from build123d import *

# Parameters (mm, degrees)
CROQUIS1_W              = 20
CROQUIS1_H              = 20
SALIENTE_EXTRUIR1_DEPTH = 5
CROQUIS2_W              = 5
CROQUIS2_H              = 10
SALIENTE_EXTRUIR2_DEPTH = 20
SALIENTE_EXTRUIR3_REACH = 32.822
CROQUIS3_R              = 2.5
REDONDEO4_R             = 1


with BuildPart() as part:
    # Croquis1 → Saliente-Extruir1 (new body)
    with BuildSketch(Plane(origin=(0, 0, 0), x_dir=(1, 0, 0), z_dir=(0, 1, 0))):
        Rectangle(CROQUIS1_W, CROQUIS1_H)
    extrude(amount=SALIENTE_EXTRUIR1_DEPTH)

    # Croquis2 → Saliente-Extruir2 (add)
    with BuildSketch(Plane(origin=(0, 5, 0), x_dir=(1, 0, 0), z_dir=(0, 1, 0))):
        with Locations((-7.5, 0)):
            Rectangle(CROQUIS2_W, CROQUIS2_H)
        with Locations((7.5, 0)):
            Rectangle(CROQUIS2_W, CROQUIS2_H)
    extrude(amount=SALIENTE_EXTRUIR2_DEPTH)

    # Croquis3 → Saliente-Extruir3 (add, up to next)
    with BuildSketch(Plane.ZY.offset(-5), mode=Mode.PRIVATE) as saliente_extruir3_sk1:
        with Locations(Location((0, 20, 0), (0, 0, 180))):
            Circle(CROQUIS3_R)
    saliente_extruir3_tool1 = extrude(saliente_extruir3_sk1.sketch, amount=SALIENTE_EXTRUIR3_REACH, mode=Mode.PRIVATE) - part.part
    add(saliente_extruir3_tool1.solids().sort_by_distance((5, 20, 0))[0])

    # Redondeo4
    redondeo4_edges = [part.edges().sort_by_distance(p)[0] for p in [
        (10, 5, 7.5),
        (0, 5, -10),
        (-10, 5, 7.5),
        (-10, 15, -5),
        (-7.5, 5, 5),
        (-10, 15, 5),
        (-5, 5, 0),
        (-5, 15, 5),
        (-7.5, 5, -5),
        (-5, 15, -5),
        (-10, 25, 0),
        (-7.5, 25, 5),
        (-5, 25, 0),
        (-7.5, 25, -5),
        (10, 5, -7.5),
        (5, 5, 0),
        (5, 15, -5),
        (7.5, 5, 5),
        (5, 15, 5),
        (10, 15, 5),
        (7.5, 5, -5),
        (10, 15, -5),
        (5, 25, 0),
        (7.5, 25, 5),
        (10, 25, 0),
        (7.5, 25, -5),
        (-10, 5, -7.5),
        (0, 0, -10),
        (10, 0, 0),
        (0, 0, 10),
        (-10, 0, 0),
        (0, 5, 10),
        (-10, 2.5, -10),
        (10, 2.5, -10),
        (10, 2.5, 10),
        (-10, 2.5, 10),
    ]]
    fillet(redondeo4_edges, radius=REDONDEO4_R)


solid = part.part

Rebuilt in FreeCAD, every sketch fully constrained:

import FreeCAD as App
import Part
import Sketcher
Q = App.Units.Quantity


def edges_at(feature, points):
    """Names of the edges that pass closest to the given points."""
    edges = feature.Shape.Edges
    near = lambda p: min(range(len(edges)), key=lambda i: edges[i].distToShape(Part.Vertex(*p))[0])
    return sorted({f"Edge{near(p) + 1}" for p in points})


def add_polygon(sketch, points):
    """Adds a closed chain of lines whose ends are joined by coincident constraints."""
    first, n = sketch.GeometryCount, len(points)
    for a, b in zip(points, points[1:] + points[:1]):
        sketch.addGeometry(Part.LineSegment(App.Vector(*a, 0), App.Vector(*b, 0)), False)
    for i in range(n):
        sketch.addConstraint(Sketcher.Constraint("Coincident", first + i, 2, first + (i + 1) % n, 1))

doc = App.newDocument("Part")
body = doc.addObject("PartDesign::Body", "Body")

# Sketch on XZ plane
sketch1 = body.newObject("Sketcher::SketchObject", "Sketch")
sketch1.AttachmentSupport = (doc.getObject("XZ_Plane"), [""])
sketch1.MapMode = "FlatFace"
add_polygon(sketch1, [(-10, -10), (-10, 10), (10, 10), (10, -10)])  # lines 0-3
sketch1.addConstraint([
    Sketcher.Constraint("Vertical", 0),
    Sketcher.Constraint("Horizontal", 1),
    Sketcher.Constraint("Vertical", 2),
    Sketcher.Constraint("Horizontal", 3),
    Sketcher.Constraint("Symmetric", 0, 2, 2, 2, -1, 1),
    Sketcher.Constraint("Equal", 3, 0),
    Sketcher.Constraint("DistanceX", 1, 1, 1, 2, Q("20 mm")),
])
pad1 = body.newObject("PartDesign::Pad", "Pad")
pad1.Profile = sketch1
pad1.Length = 5
pad1.Reversed = True

# Sketch on XZ plane
sketch2 = body.newObject("Sketcher::SketchObject", "Sketch001")
sketch2.AttachmentSupport = (doc.getObject("XZ_Plane"), [""])
sketch2.MapMode = "FlatFace"
sketch2.AttachmentOffset = App.Placement(App.Vector(0, 0, -5), App.Rotation())
add_polygon(sketch2, [(-10, -5), (-10, 5), (-5, 5), (-5, -5)])  # lines 0-3
add_polygon(sketch2, [(5, -5), (5, 5), (10, 5), (10, -5)])  # lines 4-7
sketch2.addConstraint([
    Sketcher.Constraint("Vertical", 0),
    Sketcher.Constraint("Horizontal", 1),
    Sketcher.Constraint("Vertical", 2),
    Sketcher.Constraint("Horizontal", 3),
    Sketcher.Constraint("Vertical", 4),
    Sketcher.Constraint("Horizontal", 5),
    Sketcher.Constraint("Vertical", 6),
    Sketcher.Constraint("Horizontal", 7),
    Sketcher.Constraint("Symmetric", 2, 2, 4, 2, -1, 1),
    Sketcher.Constraint("Symmetric", 0, 2, 6, 2, -1, 1),
    Sketcher.Constraint("Horizontal", 1, 2, 4, 2),
    Sketcher.Constraint("DistanceX", 1, 1, 1, 2, Q("5 mm")),
    Sketcher.Constraint("DistanceY", 0, 1, 0, 2, Q("10 mm")),
    Sketcher.Constraint("DistanceX", 0, 2, -1, 1, Q("10 mm")),
])
pad2 = body.newObject("PartDesign::Pad", "Pad001")
pad2.Profile = sketch2
pad2.Length = 20
pad2.Reversed = True

# Sketch on YZ plane
sketch3 = body.newObject("Sketcher::SketchObject", "Sketch002")
sketch3.AttachmentSupport = (doc.getObject("YZ_Plane"), [""])
sketch3.MapMode = "FlatFace"
sketch3.AttachmentOffset = App.Placement(App.Vector(0, 0, 5), App.Rotation())
sketch3.addGeometry(Part.Circle(App.Vector(20, 0, 0), App.Vector(0, 0, 1), 2.5), False)
sketch3.addConstraint([
    Sketcher.Constraint("PointOnObject", 0, 3, -1),
    Sketcher.Constraint("Diameter", 0, Q("5 mm")),
    Sketcher.Constraint("DistanceX", -1, 1, 0, 3, Q("20 mm")),
])
pad3 = body.newObject("PartDesign::Pad", "Pad002")
pad3.Profile = sketch3
pad3.Type = "UpToFirst"
pad3.Reversed = True
doc.recompute()

fillet = body.newObject("PartDesign::Fillet", "Fillet")
fillet.Base = (pad3, edges_at(pad3, [
    (10, 5, 7.5),
    (0, 5, -10),
    (-10, 5, 7.5),
    (-10, 15, -5),
    (-7.5, 5, 5),
    (-10, 15, 5),
    (-5, 5, 0),
    (-5, 15, 5),
    (-7.5, 5, -5),
    (-5, 15, -5),
    (-10, 25, 0),
    (-7.5, 25, 5),
    (-5, 25, 0),
    (-7.5, 25, -5),
    (10, 5, -7.5),
    (5, 5, 0),
    (5, 15, -5),
    (7.5, 5, 5),
    (5, 15, 5),
    (10, 15, 5),
    (7.5, 5, -5),
    (10, 15, -5),
    (5, 25, 0),
    (7.5, 25, 5),
    (10, 25, 0),
    (7.5, 25, -5),
    (-10, 5, -7.5),
    (0, 0, -10),
    (10, 0, 0),
    (0, 0, 10),
    (-10, 0, 0),
    (0, 5, 10),
    (-10, 2.5, -10),
    (10, 2.5, -10),
    (10, 2.5, 10),
    (-10, 2.5, 10),
]))
fillet.Radius = 1

doc.recompute()
